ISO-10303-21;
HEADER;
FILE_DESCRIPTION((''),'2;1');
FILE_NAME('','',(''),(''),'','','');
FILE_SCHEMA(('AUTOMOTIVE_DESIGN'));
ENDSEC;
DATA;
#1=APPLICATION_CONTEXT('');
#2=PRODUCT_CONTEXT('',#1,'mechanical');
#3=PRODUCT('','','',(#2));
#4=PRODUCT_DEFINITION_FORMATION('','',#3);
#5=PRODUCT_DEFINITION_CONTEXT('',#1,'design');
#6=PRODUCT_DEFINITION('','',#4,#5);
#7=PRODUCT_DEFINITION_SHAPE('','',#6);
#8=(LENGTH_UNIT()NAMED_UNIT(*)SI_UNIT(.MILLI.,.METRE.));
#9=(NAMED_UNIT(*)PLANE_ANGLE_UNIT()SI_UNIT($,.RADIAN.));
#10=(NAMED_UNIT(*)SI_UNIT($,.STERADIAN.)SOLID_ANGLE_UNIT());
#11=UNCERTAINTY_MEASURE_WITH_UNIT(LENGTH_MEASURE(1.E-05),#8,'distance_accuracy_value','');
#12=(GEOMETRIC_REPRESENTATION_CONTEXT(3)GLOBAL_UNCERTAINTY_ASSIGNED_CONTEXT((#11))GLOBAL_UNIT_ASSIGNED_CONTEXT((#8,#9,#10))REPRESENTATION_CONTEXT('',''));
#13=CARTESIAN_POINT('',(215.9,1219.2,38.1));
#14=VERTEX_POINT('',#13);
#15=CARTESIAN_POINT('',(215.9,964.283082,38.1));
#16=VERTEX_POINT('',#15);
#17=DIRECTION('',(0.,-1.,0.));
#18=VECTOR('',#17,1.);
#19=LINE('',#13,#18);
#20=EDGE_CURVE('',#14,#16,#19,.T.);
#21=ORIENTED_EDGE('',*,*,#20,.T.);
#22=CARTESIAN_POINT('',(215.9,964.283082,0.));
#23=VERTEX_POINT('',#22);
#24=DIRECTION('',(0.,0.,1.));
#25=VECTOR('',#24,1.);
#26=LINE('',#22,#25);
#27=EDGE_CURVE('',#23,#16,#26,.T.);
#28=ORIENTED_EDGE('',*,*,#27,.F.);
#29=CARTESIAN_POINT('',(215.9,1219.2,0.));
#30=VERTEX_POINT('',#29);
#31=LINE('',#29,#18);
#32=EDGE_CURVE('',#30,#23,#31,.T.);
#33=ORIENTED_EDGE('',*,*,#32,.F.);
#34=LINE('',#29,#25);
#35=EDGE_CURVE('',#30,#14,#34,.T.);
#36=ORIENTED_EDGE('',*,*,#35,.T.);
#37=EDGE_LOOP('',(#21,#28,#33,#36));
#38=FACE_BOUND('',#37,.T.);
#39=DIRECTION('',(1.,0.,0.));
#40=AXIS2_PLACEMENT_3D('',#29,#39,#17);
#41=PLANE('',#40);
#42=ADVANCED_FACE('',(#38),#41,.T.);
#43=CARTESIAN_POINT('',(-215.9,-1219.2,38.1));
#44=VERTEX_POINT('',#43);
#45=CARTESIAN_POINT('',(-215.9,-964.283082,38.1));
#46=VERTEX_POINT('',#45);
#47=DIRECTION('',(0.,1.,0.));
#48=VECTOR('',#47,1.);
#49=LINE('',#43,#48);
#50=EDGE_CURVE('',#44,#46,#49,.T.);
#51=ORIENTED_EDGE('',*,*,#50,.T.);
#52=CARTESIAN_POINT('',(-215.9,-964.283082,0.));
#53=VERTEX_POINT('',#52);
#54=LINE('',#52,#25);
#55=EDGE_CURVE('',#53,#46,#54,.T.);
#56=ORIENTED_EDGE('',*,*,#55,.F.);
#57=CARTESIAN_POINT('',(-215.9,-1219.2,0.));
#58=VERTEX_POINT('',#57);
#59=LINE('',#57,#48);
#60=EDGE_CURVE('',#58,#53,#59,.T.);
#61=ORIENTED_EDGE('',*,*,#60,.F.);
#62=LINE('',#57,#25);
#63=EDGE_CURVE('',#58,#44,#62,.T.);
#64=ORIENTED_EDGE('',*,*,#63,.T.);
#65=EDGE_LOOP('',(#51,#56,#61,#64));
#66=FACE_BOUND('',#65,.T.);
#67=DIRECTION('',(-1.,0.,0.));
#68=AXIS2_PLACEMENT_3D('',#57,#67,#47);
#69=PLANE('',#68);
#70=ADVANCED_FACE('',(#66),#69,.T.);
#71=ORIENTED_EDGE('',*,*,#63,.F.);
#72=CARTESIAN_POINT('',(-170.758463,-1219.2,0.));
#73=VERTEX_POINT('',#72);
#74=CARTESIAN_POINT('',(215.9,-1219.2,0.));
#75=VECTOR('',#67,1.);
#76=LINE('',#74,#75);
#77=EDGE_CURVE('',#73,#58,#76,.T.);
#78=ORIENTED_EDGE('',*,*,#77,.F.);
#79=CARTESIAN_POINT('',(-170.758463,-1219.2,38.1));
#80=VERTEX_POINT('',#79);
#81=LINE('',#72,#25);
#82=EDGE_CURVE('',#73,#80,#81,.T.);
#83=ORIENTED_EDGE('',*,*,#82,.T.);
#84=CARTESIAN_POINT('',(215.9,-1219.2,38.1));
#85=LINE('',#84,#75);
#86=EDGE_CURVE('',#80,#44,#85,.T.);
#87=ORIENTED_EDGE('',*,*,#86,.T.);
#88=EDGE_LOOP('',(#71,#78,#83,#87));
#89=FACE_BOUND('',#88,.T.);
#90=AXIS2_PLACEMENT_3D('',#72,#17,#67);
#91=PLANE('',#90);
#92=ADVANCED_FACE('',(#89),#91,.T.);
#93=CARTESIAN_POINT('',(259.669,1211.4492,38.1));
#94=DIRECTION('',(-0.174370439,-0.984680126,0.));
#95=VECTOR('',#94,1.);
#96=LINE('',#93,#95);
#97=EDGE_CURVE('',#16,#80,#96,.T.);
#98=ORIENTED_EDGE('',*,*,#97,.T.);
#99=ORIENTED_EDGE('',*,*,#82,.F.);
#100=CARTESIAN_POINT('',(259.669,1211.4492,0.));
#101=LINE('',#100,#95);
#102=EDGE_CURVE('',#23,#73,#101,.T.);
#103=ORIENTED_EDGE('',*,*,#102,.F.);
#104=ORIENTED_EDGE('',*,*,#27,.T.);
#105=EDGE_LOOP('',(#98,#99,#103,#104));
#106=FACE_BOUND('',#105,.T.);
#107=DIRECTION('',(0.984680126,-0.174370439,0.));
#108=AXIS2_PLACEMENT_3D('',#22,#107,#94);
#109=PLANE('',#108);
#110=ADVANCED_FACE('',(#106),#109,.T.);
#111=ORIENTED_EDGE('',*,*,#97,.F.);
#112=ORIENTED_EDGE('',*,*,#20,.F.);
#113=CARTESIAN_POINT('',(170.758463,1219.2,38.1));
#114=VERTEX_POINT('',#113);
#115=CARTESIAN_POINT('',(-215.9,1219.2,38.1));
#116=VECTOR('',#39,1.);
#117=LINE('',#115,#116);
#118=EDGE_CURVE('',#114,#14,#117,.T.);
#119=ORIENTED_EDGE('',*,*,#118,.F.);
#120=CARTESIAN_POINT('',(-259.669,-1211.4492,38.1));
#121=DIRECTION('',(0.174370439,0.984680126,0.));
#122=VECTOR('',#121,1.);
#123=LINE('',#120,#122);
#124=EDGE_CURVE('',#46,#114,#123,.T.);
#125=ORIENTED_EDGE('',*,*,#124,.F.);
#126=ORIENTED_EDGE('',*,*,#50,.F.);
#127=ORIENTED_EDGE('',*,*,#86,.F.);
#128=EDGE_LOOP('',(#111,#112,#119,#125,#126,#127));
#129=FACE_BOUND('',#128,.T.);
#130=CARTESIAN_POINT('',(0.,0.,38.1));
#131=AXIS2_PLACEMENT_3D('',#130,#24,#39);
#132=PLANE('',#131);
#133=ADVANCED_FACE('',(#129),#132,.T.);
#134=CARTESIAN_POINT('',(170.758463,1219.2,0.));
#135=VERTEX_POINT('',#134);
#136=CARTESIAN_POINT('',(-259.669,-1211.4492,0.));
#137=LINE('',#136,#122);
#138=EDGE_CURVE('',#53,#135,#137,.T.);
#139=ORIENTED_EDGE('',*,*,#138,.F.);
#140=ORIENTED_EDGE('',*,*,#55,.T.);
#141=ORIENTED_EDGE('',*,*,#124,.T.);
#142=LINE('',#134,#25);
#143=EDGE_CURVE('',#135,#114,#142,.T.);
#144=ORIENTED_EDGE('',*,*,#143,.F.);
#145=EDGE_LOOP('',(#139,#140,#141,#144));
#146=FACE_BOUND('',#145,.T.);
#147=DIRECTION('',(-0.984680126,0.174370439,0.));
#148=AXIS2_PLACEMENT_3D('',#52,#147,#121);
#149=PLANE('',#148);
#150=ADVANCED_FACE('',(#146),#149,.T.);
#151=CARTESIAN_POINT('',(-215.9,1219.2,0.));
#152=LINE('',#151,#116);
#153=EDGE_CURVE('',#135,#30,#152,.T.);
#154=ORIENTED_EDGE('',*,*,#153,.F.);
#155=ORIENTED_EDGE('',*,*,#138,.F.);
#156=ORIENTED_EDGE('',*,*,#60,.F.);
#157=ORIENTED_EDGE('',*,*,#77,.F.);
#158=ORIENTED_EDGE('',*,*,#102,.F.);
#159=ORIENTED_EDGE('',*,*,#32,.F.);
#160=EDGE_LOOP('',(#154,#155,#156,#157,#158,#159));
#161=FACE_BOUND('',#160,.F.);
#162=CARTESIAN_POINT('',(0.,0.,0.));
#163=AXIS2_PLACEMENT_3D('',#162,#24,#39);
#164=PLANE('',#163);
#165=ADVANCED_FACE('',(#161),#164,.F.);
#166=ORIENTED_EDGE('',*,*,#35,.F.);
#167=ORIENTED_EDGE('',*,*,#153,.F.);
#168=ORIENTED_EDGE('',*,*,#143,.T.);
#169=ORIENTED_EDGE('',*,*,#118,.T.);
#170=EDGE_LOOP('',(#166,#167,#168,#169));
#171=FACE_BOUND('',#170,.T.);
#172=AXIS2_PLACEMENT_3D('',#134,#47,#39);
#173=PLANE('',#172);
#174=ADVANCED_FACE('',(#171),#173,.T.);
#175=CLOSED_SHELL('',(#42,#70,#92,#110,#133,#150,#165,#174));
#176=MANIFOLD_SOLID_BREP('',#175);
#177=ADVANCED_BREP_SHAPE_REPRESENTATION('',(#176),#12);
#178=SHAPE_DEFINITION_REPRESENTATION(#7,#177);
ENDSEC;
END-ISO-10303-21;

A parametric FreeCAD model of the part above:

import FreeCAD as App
import Part
import Sketcher
Q = App.Units.Quantity

doc = App.newDocument("Part")
body = doc.addObject("PartDesign::Body", "Body")

# Sketch on XY plane
sketch1 = body.newObject("Sketcher::SketchObject", "Sketch")
sketch1.AttachmentSupport = (doc.getObject("XY_Plane"), [""])
sketch1.MapMode = "FlatFace"
sketch1.addGeometry(Part.LineSegment(App.Vector(-215.9, -1219.2, 0), App.Vector(-170.758463, -1219.2, 0)), False)
sketch1.addGeometry(Part.LineSegment(App.Vector(-170.758463, -1219.2, 0), App.Vector(215.9, 964.283082, 0)), False)
sketch1.addGeometry(Part.LineSegment(App.Vector(215.9, 964.283082, 0), App.Vector(215.9, 1219.2, 0)), False)
sketch1.addGeometry(Part.LineSegment(App.Vector(215.9, 1219.2, 0), App.Vector(170.758463, 1219.2, 0)), False)
sketch1.addGeometry(Part.LineSegment(App.Vector(170.758463, 1219.2, 0), App.Vector(-215.9, -964.283082, 0)), False)
sketch1.addGeometry(Part.LineSegment(App.Vector(-215.9, -964.283082, 0), App.Vector(-215.9, -1219.2, 0)), False)
sketch1.addConstraint(Sketcher.Constraint("Coincident", 0, 2, 1, 1))
sketch1.addConstraint(Sketcher.Constraint("Coincident", 1, 2, 2, 1))
sketch1.addConstraint(Sketcher.Constraint("Coincident", 2, 2, 3, 1))
sketch1.addConstraint(Sketcher.Constraint("Coincident", 3, 2, 4, 1))
sketch1.addConstraint(Sketcher.Constraint("Coincident", 4, 2, 5, 1))
sketch1.addConstraint(Sketcher.Constraint("Coincident", 5, 2, 0, 1))
sketch1.addConstraint(Sketcher.Constraint("Horizontal", 0))
sketch1.addConstraint(Sketcher.Constraint("Vertical", 2))
sketch1.addConstraint(Sketcher.Constraint("Horizontal", 3))
sketch1.addConstraint(Sketcher.Constraint("Vertical", 5))
sketch1.addConstraint(Sketcher.Constraint("Symmetric", 0, 2, 3, 2, -1, 1))
sketch1.addConstraint(Sketcher.Constraint("Symmetric", 1, 2, 4, 2, -1, 1))
sketch1.addConstraint(Sketcher.Constraint("DistanceY", 0, 2, 2, 2, Q("96 in")))
sketch1.addConstraint(Sketcher.Constraint("DistanceX", 4, 2, 1, 2, Q("17 in")))
sketch1.addConstraint(Sketcher.Constraint("DistanceY", 2, 1, 2, 2, Q("10.0361 in")))
sketch1.addConstraint(Sketcher.Constraint("DistanceX", 0, 1, 0, 2, Q("45.1415 mm")))
pad1 = body.newObject("PartDesign::Pad", "Pad")
pad1.Profile = sketch1
pad1.Length = Q("1.5 in")

doc.recompute()
